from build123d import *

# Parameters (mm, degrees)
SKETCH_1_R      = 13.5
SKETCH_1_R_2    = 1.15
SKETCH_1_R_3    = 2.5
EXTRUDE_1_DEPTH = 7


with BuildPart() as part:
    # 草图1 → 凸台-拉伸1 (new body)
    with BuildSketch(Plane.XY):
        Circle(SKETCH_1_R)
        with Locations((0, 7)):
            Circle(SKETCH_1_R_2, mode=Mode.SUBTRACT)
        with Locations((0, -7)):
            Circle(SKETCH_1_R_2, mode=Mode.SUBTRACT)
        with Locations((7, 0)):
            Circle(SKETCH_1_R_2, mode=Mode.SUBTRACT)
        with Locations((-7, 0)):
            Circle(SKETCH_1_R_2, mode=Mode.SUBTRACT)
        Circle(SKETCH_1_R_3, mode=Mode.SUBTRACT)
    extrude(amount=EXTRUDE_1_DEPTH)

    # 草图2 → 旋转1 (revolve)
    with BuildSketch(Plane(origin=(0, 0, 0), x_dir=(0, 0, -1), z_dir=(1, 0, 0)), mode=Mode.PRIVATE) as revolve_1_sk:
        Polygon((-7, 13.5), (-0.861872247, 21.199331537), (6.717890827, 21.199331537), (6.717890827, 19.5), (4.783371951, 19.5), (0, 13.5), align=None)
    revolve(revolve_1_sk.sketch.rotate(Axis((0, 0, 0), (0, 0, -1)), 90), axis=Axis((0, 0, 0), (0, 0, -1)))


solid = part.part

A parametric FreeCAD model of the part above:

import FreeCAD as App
import Part
import Sketcher

V = App.Vector
Q = App.Units.Quantity

doc = App.newDocument("Part")
body = doc.addObject("PartDesign::Body", "Body")

# Sketch on XY plane
sketch1 = body.newObject("Sketcher::SketchObject", "Sketch")
sketch1.AttachmentSupport = (doc.getObject("XY_Plane"), [""])
sketch1.MapMode = "FlatFace"
sketch1.addGeometry([
    Part.Circle(V(0, 0, 0), V(0, 0, 1), 13.5),  # 0
    Part.Circle(V(0, -7, 0), V(0, 0, 1), 1.1),  # 1
    Part.Circle(V(-7, 0, 0), V(0, 0, 1), 1.1),  # 2
    Part.Circle(V(0, 0, 0), V(0, 0, 1), 2.5),  # 3
    Part.Circle(V(7, 0, 0), V(0, 0, 1), 1.1),  # 4
    Part.Circle(V(0, 7, 0), V(0, 0, 1), 1.1),  # 5
], False)
sketch1.addConstraint([
    Sketcher.Constraint("Coincident", 0, 3, -1, 1),
    Sketcher.Constraint("Coincident", 3, 3, -1, 1),
    Sketcher.Constraint("Equal", 1, 2),
    Sketcher.Constraint("Equal", 2, 4),
    Sketcher.Constraint("Equal", 4, 5),
    Sketcher.Constraint("Symmetric", 2, 3, 4, 3, -1, 1),
    Sketcher.Constraint("Symmetric", 1, 3, 5, 3, -1, 1),
    Sketcher.Constraint("PointOnObject", 1, 3, -2),
    Sketcher.Constraint("PointOnObject", 2, 3, -1),
    Sketcher.Constraint("Diameter", 0, Q("27 mm")),
    Sketcher.Constraint("Diameter", 3, Q("5 mm")),
    Sketcher.Constraint("Diameter", 1, Q("2.3 mm")),
    Sketcher.Constraint("DistanceY", 1, 3, -1, 1, Q("7 mm")),
    Sketcher.Constraint("DistanceX", 2, 3, -1, 1, Q("7 mm")),
])
pad1 = body.newObject("PartDesign::Pad", "Pad")
pad1.Profile = sketch1
pad1.Length = 7

# Sketch on YZ plane
sketch2 = body.newObject("Sketcher::SketchObject", "Sketch001")
sketch2.AttachmentSupport = (doc.getObject("YZ_Plane"), [""])
sketch2.MapMode = "FlatFace"
sketch2.addGeometry([
    Part.LineSegment(V(21.2, 0.9, 0), V(13.5, 7, 0)),  # 0
    Part.LineSegment(V(13.5, 7, 0), V(13.5, 0, 0)),  # 1
    Part.LineSegment(V(13.5, 0, 0), V(19.5, -4.8, 0)),  # 2
    Part.LineSegment(V(19.5, -4.8, 0), V(19.5, -6.7, 0)),  # 3
    Part.LineSegment(V(19.5, -6.7, 0), V(21.2, -6.7, 0)),  # 4
    Part.LineSegment(V(21.2, -6.7, 0), V(21.2, 0.9, 0)),  # 5
], False)
sketch2.addConstraint([
    Sketcher.Constraint("Coincident", 0, 2, 1, 1),
    Sketcher.Constraint("Coincident", 1, 2, 2, 1),
    Sketcher.Constraint("Coincident", 2, 2, 3, 1),
    Sketcher.Constraint("Coincident", 3, 2, 4, 1),
    Sketcher.Constraint("Coincident", 4, 2, 5, 1),
    Sketcher.Constraint("Coincident", 5, 2, 0, 1),
    Sketcher.Constraint("Vertical", 1),
    Sketcher.Constraint("Vertical", 3),
    Sketcher.Constraint("Horizontal", 4),
    Sketcher.Constraint("Vertical", 5),
    Sketcher.Constraint("PointOnObject", 1, 2, -1),
    Sketcher.Constraint("Parallel", 0, 2),
    Sketcher.Constraint("DistanceY", 1, 2, 1, 1, Q("7 mm")),
    Sketcher.Constraint("DistanceX", 1, 2, 2, 2, Q("6 mm")),
    Sketcher.Constraint("DistanceX", -1, 1, 0, 2, Q("13.5 mm")),
    Sketcher.Constraint("DistanceX", 4, 1, 4, 2, Q("1.699332 mm")),
    Sketcher.Constraint("DistanceY", 3, 2, 3, 1, Q("1.934519 mm")),
    Sketcher.Constraint("Distance", 0, Q("9.84664 mm")),
])
revolution = body.newObject("PartDesign::Revolution", "Revolution")
revolution.Profile = sketch2
revolution.ReferenceAxis = (sketch2, ["V_Axis"])
revolution.Angle = 360

doc.recompute()
